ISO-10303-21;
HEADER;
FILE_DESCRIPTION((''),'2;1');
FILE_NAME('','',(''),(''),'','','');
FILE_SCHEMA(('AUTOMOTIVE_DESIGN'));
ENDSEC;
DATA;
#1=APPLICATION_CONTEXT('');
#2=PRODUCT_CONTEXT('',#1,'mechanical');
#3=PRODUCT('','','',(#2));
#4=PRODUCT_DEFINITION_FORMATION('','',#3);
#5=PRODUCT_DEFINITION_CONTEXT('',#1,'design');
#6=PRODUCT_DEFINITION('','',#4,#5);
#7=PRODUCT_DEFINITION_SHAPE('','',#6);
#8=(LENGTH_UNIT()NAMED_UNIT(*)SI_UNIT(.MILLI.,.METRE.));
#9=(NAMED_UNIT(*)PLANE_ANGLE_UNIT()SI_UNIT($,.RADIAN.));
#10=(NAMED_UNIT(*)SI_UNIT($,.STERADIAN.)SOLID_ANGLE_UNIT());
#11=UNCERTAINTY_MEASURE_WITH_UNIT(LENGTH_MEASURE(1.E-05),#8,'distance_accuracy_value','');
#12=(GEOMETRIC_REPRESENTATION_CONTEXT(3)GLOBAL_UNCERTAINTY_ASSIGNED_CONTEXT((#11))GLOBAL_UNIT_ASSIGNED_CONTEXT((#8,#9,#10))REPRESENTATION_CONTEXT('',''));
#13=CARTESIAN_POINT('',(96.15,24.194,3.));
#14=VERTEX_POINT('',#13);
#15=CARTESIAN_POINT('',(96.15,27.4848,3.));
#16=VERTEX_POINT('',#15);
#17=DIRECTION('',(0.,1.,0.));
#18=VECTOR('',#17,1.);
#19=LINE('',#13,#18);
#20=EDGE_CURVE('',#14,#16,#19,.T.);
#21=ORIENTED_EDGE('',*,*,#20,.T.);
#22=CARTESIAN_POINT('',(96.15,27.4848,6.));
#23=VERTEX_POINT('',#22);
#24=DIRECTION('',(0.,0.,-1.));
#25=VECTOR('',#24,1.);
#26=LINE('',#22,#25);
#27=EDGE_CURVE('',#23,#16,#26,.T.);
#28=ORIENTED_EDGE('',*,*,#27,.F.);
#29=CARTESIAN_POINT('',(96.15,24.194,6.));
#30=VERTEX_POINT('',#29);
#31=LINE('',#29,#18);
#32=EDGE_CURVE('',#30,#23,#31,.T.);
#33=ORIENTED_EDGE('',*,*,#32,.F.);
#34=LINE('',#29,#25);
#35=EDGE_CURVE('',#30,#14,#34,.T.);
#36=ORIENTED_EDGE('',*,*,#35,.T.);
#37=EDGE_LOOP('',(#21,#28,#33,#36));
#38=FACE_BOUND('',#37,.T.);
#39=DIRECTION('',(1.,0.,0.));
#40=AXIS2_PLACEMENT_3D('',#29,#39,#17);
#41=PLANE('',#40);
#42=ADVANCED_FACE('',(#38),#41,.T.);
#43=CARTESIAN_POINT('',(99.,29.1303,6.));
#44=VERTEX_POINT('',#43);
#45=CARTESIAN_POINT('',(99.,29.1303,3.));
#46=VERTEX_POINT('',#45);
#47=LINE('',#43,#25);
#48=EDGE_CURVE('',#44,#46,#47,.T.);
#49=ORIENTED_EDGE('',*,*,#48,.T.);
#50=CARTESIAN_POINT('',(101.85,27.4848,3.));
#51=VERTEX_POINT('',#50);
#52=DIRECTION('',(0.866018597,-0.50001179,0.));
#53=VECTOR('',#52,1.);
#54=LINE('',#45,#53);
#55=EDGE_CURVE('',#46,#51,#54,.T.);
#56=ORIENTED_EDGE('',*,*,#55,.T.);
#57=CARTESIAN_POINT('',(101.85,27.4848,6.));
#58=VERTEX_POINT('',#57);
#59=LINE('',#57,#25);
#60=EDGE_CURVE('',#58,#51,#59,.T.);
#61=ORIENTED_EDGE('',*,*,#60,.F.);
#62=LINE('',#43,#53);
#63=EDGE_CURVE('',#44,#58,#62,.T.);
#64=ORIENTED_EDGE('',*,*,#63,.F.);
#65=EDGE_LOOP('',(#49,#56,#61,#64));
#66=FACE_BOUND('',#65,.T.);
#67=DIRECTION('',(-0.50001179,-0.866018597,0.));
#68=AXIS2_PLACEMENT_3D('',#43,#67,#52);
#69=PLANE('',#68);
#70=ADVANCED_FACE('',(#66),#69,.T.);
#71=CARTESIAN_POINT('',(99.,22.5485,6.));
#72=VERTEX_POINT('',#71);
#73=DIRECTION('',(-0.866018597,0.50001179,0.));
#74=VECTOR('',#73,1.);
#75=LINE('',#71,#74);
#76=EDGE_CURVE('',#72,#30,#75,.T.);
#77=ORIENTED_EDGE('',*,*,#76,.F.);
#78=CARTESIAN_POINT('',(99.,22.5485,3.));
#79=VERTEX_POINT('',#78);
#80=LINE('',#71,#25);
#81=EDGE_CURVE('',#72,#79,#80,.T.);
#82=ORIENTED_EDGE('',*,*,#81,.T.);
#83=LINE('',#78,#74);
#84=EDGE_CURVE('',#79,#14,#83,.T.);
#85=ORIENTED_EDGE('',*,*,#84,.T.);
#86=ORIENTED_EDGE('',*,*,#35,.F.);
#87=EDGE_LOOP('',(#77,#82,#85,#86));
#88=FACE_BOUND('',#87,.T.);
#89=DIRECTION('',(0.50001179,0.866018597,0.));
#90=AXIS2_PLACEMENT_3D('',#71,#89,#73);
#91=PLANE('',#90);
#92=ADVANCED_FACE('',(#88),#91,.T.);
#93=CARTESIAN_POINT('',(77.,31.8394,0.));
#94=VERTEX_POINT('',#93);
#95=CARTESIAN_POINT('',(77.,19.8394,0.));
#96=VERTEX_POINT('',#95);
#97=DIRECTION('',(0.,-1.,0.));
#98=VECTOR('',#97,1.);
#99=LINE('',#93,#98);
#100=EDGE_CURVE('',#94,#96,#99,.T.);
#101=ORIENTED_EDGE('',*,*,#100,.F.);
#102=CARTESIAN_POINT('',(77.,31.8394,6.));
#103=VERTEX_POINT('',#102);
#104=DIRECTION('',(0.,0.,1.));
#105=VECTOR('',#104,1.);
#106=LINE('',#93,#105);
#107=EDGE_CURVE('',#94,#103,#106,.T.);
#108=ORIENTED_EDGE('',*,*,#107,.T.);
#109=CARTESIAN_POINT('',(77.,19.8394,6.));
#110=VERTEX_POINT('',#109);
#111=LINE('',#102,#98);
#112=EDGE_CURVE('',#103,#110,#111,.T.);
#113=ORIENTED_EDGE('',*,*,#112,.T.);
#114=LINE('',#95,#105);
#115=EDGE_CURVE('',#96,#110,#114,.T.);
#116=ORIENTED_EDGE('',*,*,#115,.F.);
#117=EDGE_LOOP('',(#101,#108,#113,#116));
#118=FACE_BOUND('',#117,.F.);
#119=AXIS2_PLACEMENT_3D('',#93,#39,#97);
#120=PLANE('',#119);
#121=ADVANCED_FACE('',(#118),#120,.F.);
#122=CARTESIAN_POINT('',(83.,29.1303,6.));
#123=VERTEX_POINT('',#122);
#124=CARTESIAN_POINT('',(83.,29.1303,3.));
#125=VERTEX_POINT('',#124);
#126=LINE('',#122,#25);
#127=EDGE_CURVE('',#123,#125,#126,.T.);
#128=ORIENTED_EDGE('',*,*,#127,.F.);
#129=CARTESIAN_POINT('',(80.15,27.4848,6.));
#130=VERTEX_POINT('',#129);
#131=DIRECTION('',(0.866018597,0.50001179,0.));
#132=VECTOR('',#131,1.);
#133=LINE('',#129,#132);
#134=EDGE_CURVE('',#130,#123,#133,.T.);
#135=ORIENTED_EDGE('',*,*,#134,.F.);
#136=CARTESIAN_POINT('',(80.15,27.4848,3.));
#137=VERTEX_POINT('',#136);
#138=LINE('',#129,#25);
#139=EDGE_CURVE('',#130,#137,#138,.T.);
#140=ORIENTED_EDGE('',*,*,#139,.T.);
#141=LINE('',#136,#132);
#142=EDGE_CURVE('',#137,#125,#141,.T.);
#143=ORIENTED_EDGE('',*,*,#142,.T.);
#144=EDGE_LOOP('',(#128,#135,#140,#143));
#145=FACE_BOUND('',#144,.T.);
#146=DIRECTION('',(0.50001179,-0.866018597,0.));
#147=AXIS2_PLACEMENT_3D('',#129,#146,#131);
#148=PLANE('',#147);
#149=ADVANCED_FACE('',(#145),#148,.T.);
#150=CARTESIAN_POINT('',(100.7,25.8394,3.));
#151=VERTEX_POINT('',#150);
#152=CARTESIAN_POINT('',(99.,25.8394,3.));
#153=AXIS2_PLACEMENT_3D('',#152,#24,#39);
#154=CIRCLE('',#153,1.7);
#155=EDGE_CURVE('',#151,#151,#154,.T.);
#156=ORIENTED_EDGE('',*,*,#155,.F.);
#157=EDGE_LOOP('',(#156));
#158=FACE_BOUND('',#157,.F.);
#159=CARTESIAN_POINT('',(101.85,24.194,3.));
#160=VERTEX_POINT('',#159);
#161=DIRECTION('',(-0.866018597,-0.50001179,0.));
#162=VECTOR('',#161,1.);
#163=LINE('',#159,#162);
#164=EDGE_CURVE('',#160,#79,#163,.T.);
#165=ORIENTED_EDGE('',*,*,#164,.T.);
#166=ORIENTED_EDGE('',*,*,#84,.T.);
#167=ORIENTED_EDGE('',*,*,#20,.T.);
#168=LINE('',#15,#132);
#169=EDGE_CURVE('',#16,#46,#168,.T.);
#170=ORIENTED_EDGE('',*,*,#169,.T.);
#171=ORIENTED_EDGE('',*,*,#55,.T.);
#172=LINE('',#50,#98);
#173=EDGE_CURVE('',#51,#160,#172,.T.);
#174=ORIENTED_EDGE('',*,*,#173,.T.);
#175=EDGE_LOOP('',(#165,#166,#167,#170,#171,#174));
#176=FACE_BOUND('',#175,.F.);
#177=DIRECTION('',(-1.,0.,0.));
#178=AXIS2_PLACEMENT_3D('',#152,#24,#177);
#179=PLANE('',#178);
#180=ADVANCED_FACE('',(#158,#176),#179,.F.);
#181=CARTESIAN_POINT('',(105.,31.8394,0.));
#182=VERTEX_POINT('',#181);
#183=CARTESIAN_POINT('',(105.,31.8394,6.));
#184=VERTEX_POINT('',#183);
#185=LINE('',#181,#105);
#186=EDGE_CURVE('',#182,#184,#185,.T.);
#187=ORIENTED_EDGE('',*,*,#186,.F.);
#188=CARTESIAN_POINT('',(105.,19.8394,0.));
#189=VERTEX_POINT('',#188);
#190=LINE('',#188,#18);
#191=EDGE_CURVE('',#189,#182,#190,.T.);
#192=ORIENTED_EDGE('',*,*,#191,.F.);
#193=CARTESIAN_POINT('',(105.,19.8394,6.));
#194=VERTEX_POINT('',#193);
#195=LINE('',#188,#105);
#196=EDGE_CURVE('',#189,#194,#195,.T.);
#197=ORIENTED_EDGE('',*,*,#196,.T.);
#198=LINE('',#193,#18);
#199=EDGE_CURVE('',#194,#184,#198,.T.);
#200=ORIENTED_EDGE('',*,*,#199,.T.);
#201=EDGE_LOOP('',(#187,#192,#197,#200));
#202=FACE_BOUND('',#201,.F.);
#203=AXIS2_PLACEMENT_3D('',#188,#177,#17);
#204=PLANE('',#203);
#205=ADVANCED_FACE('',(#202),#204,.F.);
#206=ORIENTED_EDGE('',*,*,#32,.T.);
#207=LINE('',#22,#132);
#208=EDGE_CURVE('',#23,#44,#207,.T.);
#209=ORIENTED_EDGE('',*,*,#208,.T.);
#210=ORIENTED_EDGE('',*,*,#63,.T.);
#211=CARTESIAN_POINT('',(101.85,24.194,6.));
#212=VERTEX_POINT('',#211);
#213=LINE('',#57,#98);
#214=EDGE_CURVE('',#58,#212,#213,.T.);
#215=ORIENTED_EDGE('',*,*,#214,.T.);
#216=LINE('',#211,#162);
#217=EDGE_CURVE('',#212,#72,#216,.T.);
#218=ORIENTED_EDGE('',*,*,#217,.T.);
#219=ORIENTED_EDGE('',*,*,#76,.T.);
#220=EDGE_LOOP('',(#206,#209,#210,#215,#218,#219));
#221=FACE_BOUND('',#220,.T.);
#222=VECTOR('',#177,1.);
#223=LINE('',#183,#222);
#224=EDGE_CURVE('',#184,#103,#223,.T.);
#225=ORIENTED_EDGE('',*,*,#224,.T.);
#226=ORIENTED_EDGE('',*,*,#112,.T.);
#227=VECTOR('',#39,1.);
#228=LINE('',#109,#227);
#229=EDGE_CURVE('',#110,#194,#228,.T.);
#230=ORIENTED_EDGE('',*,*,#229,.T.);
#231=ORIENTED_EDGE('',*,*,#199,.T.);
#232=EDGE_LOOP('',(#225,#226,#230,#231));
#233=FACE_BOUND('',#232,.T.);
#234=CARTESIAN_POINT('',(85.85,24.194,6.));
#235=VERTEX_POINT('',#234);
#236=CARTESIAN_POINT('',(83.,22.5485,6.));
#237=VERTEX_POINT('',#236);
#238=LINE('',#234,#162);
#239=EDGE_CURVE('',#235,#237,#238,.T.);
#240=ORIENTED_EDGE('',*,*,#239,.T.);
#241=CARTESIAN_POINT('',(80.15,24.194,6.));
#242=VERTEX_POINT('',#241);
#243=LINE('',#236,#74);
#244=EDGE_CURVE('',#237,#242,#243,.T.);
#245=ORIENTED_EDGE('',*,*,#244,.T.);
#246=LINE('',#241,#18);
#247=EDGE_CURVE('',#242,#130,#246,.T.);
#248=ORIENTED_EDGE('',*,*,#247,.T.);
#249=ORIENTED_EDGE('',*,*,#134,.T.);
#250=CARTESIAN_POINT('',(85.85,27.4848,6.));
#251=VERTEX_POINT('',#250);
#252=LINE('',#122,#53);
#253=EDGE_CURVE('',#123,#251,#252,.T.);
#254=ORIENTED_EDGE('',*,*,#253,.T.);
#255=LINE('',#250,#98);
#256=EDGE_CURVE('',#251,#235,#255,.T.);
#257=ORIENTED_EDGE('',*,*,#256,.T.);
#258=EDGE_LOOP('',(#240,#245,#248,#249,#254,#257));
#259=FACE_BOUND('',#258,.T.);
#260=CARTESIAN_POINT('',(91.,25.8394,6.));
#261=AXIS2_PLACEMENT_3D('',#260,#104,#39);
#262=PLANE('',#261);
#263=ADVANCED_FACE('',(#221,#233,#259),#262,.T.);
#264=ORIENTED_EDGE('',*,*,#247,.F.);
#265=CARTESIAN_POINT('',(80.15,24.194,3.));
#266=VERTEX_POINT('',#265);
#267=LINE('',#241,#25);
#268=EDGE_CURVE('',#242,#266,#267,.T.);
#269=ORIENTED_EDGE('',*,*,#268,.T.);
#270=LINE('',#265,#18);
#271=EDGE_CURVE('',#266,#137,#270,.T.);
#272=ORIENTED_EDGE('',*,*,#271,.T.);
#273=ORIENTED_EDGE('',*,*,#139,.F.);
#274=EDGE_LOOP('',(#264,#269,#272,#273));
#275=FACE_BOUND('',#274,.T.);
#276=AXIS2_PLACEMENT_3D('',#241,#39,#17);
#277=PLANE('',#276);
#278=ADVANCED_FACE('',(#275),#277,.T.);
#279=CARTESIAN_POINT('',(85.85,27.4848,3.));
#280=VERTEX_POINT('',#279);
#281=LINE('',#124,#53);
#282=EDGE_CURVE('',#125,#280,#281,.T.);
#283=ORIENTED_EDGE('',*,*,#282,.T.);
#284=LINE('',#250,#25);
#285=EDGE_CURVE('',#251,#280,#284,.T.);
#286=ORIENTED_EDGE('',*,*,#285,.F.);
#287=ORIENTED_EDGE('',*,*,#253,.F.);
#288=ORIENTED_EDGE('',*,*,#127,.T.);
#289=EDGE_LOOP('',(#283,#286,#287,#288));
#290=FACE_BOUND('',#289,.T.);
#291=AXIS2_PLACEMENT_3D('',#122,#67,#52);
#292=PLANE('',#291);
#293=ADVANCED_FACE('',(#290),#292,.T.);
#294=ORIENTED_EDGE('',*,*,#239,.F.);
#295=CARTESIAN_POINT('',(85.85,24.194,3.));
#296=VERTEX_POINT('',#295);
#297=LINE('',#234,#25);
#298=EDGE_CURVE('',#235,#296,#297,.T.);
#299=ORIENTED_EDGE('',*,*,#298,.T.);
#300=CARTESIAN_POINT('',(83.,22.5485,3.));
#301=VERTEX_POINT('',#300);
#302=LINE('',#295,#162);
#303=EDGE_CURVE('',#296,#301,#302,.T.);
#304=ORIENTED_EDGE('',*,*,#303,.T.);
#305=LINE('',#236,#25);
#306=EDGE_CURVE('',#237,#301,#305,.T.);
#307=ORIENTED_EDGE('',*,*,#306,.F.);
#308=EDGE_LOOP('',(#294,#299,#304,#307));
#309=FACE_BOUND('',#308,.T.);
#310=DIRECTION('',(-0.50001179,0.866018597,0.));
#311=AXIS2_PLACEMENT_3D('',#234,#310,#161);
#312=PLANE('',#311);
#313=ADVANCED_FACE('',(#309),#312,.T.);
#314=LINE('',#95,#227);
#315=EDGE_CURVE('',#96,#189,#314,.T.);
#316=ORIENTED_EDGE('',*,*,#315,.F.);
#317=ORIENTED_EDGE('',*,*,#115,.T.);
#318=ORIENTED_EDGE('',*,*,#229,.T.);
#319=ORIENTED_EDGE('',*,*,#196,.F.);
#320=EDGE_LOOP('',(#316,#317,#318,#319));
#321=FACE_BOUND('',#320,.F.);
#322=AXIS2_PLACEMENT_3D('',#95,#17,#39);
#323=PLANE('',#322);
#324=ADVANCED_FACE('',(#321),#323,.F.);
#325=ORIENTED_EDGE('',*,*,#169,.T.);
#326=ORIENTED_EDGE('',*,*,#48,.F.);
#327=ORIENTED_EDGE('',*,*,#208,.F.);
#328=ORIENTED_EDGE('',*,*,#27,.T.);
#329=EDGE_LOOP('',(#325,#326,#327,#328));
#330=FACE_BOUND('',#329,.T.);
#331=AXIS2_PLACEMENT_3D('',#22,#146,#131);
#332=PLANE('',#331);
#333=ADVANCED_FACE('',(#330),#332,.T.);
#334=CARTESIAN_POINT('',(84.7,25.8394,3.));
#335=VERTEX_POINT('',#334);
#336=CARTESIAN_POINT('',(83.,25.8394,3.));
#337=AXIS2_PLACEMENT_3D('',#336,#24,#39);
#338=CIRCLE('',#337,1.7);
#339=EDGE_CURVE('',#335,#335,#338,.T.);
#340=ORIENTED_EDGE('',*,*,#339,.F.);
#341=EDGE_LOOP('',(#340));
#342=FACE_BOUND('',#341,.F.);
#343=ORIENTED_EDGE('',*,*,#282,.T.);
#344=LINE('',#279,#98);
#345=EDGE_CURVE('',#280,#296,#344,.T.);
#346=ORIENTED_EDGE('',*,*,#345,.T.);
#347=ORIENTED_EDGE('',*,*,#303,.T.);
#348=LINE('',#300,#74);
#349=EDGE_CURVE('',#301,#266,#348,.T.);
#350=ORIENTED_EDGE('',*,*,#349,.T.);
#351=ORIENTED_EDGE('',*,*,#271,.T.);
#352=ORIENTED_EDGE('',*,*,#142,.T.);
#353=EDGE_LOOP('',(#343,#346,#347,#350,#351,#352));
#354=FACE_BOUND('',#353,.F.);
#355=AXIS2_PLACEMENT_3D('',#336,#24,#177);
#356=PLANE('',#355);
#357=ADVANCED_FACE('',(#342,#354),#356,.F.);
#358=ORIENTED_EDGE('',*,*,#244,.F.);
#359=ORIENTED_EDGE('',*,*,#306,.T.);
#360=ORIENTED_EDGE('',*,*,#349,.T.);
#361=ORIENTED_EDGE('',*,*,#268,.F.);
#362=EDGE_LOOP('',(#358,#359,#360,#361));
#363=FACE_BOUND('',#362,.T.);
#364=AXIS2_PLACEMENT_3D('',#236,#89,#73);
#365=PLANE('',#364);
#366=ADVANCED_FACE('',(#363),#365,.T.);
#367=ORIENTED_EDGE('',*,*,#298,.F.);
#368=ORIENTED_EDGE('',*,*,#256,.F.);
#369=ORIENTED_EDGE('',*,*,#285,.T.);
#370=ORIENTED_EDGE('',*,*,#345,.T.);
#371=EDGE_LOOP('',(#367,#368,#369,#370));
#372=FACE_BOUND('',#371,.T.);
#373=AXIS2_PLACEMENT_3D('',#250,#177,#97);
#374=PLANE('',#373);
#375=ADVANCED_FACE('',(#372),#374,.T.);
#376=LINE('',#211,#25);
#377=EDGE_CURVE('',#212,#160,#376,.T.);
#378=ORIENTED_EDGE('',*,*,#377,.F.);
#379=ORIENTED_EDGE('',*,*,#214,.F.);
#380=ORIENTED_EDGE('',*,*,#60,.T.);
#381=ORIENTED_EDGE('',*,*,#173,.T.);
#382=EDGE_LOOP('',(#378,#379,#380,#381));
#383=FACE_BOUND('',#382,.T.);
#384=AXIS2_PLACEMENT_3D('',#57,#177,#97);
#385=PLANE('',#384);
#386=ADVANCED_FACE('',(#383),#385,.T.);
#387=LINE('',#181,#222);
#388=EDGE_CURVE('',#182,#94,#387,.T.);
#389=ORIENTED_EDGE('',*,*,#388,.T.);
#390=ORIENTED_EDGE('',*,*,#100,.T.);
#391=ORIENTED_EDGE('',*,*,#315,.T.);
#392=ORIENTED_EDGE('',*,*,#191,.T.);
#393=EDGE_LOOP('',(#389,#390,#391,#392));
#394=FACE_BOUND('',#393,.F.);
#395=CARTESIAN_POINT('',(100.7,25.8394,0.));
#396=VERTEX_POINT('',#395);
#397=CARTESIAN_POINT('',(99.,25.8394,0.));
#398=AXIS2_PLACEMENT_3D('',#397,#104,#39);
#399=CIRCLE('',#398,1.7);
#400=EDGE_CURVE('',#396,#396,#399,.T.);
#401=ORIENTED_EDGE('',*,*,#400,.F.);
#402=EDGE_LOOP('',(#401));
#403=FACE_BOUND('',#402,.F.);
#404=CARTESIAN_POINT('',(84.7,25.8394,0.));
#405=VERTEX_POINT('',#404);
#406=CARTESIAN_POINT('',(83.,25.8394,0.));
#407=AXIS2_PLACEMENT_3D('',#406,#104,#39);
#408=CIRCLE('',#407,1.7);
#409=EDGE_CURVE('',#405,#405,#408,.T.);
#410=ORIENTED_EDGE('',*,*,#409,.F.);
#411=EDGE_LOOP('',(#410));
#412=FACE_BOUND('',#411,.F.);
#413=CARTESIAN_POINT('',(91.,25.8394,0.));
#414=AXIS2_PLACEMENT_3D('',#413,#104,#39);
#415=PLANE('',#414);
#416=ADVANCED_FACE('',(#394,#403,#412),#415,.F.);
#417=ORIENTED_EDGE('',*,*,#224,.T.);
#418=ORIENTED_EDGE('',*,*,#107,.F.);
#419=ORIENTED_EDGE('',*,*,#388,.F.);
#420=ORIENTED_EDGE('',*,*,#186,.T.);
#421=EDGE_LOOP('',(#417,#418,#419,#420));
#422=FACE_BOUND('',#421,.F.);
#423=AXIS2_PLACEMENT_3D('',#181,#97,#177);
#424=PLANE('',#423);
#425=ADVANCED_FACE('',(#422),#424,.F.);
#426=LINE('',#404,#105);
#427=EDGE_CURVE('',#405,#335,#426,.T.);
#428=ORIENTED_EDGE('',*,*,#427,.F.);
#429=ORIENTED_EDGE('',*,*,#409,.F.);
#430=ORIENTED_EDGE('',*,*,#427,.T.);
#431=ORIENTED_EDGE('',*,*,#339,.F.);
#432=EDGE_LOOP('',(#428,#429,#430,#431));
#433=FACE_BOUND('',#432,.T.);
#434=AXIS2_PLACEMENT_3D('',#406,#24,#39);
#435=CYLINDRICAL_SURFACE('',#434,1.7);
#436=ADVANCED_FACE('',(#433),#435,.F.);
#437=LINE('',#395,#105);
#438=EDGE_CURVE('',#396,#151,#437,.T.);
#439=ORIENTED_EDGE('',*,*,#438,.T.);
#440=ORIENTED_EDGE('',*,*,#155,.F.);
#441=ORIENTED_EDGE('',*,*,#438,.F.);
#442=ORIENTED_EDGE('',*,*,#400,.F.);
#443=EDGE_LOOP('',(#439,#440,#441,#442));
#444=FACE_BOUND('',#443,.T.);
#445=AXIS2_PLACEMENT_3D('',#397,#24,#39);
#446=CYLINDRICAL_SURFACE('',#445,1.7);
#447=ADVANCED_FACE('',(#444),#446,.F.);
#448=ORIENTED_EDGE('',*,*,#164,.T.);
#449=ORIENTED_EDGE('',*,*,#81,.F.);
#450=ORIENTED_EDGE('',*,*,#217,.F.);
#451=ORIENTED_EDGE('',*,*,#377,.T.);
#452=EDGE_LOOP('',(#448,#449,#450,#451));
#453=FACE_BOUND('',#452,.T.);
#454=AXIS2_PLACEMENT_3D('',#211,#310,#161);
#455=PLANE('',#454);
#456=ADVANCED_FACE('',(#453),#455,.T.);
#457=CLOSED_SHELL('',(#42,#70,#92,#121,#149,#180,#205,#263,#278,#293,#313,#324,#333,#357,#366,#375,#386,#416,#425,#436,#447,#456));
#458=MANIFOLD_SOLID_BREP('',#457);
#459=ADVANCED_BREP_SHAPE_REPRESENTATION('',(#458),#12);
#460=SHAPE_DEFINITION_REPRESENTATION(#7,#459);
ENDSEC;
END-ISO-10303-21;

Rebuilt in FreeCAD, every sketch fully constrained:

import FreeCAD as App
import Part
import Sketcher
Q = App.Units.Quantity

doc = App.newDocument("Part")
body = doc.addObject("PartDesign::Body", "Body")

sketch1 = body.newObject("Sketcher::SketchObject", "Sketch")
sketch1.AttachmentSupport = (doc.getObject("XY_Plane"), [""])
sketch1.MapMode = "FlatFace"
sketch1.addGeometry([
    Part.LineSegment(App.Vector(77, 31.8394, 0), App.Vector(77, 19.8394, 0)),
    Part.LineSegment(App.Vector(77, 19.8394, 0), App.Vector(105, 19.8394, 0)),
    Part.LineSegment(App.Vector(105, 19.8394, 0), App.Vector(105, 31.8394, 0)),
    Part.LineSegment(App.Vector(105, 31.8394, 0), App.Vector(77, 31.8394, 0)),
    Part.Circle(App.Vector(83, 25.8394, 0), App.Vector(0, 0, 1), 1.7),
    Part.Circle(App.Vector(99, 25.8394, 0), App.Vector(0, 0, 1), 1.7),
], False)
sketch1.addConstraint([
    Sketcher.Constraint("Coincident", 0, 2, 1, 1),
    Sketcher.Constraint("Coincident", 1, 2, 2, 1),
    Sketcher.Constraint("Coincident", 2, 2, 3, 1),
    Sketcher.Constraint("Coincident", 3, 2, 0, 1),
    Sketcher.Constraint("Vertical", 0),
    Sketcher.Constraint("Horizontal", 1),
    Sketcher.Constraint("Vertical", 2),
    Sketcher.Constraint("Horizontal", 3),
    Sketcher.Constraint("Equal", 4, 5),
    Sketcher.Constraint("Horizontal", 4, 3, 5, 3),
    Sketcher.Constraint("DistanceX", -1, 1, 0, 2, Q("77 mm")),
    Sketcher.Constraint("DistanceX", -1, 1, 1, 2, Q("105 mm")),
    Sketcher.Constraint("Diameter", 4, Q("3.4 mm")),
    Sketcher.Constraint("DistanceY", 0, 2, 0, 1, Q("12 mm")),
    Sketcher.Constraint("DistanceX", -1, 1, 4, 3, Q("83 mm")),
    Sketcher.Constraint("DistanceX", -1, 1, 5, 3, Q("99 mm")),
    Sketcher.Constraint("DistanceY", 0, 2, 4, 3, Q("6 mm")),
    Sketcher.Constraint("DistanceY", -1, 1, 4, 3, Q("25.8394 mm")),
])
pad1 = body.newObject("PartDesign::Pad", "Pad")
pad1.Profile = sketch1
pad1.Length = 6

sketch2 = body.newObject("Sketcher::SketchObject", "Sketch001")
sketch2.AttachmentSupport = (doc.getObject("XY_Plane"), [""])
sketch2.MapMode = "FlatFace"
sketch2.AttachmentOffset = App.Placement(App.Vector(0, 0, 6), App.Rotation())
sketch2.addGeometry([
    Part.LineSegment(App.Vector(99, 29.1303, 0), App.Vector(96.15, 27.4848, 0)),
    Part.LineSegment(App.Vector(96.15, 27.4848, 0), App.Vector(96.15, 24.194, 0)),
    Part.LineSegment(App.Vector(96.15, 24.194, 0), App.Vector(99, 22.5485, 0)),
    Part.LineSegment(App.Vector(99, 22.5485, 0), App.Vector(101.85, 24.194, 0)),
    Part.LineSegment(App.Vector(101.85, 24.194, 0), App.Vector(101.85, 27.4848, 0)),
    Part.LineSegment(App.Vector(101.85, 27.4848, 0), App.Vector(99, 29.1303, 0)),
    Part.LineSegment(App.Vector(83, 29.1303, 0), App.Vector(80.15, 27.4848, 0)),
    Part.LineSegment(App.Vector(80.15, 27.4848, 0), App.Vector(80.15, 24.194, 0)),
    Part.LineSegment(App.Vector(80.15, 24.194, 0), App.Vector(83, 22.5485, 0)),
    Part.LineSegment(App.Vector(83, 22.5485, 0), App.Vector(85.85, 24.194, 0)),
    Part.LineSegment(App.Vector(85.85, 24.194, 0), App.Vector(85.85, 27.4848, 0)),
    Part.LineSegment(App.Vector(85.85, 27.4848, 0), App.Vector(83, 29.1303, 0)),
], False)
sketch2.addConstraint([
    Sketcher.Constraint("Coincident", 0, 2, 1, 1),
    Sketcher.Constraint("Coincident", 1, 2, 2, 1),
    Sketcher.Constraint("Coincident", 2, 2, 3, 1),
    Sketcher.Constraint("Coincident", 3, 2, 4, 1),
    Sketcher.Constraint("Coincident", 4, 2, 5, 1),
    Sketcher.Constraint("Coincident", 5, 2, 0, 1),
    Sketcher.Constraint("Coincident", 6, 2, 7, 1),
    Sketcher.Constraint("Coincident", 7, 2, 8, 1),
    Sketcher.Constraint("Coincident", 8, 2, 9, 1),
    Sketcher.Constraint("Coincident", 9, 2, 10, 1),
    Sketcher.Constraint("Coincident", 10, 2, 11, 1),
    Sketcher.Constraint("Coincident", 11, 2, 6, 1),
    Sketcher.Constraint("Vertical", 1),
    Sketcher.Constraint("Vertical", 4),
    Sketcher.Constraint("Vertical", 7),
    Sketcher.Constraint("Vertical", 10),
    Sketcher.Constraint("Parallel", 0, 3),
    Sketcher.Constraint("Parallel", 2, 5),
    Sketcher.Constraint("Parallel", 3, 6),
    Sketcher.Constraint("Parallel", 5, 8),
    Sketcher.Constraint("Parallel", 6, 9),
    Sketcher.Constraint("Parallel", 8, 11),
    Sketcher.Constraint("Horizontal", 1, 2, 3, 2),
    Sketcher.Constraint("Horizontal", 0, 2, 4, 2),
    Sketcher.Constraint("Horizontal", 4, 2, 6, 2),
    Sketcher.Constraint("Horizontal", 3, 2, 7, 2),
    Sketcher.Constraint("Horizontal", 2, 2, 8, 2),
    Sketcher.Constraint("Horizontal", 7, 2, 9, 2),
    Sketcher.Constraint("Horizontal", 6, 2, 10, 2),
    Sketcher.Constraint("Vertical", 2, 2, 5, 2),
    Sketcher.Constraint("Angle", 0, Q("-149.9992 deg")),
    Sketcher.Constraint("DistanceX", -1, 1, 2, 2, Q("99 mm")),
    Sketcher.Constraint("DistanceX", -1, 1, 8, 2, Q("83 mm")),
    Sketcher.Constraint("DistanceX", 1, 2, 3, 2, Q("5.7 mm")),
    Sketcher.Constraint("DistanceY", 1, 2, 1, 1, Q("3.2908 mm")),
    Sketcher.Constraint("DistanceY", -1, 1, 1, 2, Q("24.194 mm")),
])
pocket1 = body.newObject("PartDesign::Pocket", "Pocket")
pocket1.Profile = sketch2
pocket1.Length = 3

doc.recompute()
